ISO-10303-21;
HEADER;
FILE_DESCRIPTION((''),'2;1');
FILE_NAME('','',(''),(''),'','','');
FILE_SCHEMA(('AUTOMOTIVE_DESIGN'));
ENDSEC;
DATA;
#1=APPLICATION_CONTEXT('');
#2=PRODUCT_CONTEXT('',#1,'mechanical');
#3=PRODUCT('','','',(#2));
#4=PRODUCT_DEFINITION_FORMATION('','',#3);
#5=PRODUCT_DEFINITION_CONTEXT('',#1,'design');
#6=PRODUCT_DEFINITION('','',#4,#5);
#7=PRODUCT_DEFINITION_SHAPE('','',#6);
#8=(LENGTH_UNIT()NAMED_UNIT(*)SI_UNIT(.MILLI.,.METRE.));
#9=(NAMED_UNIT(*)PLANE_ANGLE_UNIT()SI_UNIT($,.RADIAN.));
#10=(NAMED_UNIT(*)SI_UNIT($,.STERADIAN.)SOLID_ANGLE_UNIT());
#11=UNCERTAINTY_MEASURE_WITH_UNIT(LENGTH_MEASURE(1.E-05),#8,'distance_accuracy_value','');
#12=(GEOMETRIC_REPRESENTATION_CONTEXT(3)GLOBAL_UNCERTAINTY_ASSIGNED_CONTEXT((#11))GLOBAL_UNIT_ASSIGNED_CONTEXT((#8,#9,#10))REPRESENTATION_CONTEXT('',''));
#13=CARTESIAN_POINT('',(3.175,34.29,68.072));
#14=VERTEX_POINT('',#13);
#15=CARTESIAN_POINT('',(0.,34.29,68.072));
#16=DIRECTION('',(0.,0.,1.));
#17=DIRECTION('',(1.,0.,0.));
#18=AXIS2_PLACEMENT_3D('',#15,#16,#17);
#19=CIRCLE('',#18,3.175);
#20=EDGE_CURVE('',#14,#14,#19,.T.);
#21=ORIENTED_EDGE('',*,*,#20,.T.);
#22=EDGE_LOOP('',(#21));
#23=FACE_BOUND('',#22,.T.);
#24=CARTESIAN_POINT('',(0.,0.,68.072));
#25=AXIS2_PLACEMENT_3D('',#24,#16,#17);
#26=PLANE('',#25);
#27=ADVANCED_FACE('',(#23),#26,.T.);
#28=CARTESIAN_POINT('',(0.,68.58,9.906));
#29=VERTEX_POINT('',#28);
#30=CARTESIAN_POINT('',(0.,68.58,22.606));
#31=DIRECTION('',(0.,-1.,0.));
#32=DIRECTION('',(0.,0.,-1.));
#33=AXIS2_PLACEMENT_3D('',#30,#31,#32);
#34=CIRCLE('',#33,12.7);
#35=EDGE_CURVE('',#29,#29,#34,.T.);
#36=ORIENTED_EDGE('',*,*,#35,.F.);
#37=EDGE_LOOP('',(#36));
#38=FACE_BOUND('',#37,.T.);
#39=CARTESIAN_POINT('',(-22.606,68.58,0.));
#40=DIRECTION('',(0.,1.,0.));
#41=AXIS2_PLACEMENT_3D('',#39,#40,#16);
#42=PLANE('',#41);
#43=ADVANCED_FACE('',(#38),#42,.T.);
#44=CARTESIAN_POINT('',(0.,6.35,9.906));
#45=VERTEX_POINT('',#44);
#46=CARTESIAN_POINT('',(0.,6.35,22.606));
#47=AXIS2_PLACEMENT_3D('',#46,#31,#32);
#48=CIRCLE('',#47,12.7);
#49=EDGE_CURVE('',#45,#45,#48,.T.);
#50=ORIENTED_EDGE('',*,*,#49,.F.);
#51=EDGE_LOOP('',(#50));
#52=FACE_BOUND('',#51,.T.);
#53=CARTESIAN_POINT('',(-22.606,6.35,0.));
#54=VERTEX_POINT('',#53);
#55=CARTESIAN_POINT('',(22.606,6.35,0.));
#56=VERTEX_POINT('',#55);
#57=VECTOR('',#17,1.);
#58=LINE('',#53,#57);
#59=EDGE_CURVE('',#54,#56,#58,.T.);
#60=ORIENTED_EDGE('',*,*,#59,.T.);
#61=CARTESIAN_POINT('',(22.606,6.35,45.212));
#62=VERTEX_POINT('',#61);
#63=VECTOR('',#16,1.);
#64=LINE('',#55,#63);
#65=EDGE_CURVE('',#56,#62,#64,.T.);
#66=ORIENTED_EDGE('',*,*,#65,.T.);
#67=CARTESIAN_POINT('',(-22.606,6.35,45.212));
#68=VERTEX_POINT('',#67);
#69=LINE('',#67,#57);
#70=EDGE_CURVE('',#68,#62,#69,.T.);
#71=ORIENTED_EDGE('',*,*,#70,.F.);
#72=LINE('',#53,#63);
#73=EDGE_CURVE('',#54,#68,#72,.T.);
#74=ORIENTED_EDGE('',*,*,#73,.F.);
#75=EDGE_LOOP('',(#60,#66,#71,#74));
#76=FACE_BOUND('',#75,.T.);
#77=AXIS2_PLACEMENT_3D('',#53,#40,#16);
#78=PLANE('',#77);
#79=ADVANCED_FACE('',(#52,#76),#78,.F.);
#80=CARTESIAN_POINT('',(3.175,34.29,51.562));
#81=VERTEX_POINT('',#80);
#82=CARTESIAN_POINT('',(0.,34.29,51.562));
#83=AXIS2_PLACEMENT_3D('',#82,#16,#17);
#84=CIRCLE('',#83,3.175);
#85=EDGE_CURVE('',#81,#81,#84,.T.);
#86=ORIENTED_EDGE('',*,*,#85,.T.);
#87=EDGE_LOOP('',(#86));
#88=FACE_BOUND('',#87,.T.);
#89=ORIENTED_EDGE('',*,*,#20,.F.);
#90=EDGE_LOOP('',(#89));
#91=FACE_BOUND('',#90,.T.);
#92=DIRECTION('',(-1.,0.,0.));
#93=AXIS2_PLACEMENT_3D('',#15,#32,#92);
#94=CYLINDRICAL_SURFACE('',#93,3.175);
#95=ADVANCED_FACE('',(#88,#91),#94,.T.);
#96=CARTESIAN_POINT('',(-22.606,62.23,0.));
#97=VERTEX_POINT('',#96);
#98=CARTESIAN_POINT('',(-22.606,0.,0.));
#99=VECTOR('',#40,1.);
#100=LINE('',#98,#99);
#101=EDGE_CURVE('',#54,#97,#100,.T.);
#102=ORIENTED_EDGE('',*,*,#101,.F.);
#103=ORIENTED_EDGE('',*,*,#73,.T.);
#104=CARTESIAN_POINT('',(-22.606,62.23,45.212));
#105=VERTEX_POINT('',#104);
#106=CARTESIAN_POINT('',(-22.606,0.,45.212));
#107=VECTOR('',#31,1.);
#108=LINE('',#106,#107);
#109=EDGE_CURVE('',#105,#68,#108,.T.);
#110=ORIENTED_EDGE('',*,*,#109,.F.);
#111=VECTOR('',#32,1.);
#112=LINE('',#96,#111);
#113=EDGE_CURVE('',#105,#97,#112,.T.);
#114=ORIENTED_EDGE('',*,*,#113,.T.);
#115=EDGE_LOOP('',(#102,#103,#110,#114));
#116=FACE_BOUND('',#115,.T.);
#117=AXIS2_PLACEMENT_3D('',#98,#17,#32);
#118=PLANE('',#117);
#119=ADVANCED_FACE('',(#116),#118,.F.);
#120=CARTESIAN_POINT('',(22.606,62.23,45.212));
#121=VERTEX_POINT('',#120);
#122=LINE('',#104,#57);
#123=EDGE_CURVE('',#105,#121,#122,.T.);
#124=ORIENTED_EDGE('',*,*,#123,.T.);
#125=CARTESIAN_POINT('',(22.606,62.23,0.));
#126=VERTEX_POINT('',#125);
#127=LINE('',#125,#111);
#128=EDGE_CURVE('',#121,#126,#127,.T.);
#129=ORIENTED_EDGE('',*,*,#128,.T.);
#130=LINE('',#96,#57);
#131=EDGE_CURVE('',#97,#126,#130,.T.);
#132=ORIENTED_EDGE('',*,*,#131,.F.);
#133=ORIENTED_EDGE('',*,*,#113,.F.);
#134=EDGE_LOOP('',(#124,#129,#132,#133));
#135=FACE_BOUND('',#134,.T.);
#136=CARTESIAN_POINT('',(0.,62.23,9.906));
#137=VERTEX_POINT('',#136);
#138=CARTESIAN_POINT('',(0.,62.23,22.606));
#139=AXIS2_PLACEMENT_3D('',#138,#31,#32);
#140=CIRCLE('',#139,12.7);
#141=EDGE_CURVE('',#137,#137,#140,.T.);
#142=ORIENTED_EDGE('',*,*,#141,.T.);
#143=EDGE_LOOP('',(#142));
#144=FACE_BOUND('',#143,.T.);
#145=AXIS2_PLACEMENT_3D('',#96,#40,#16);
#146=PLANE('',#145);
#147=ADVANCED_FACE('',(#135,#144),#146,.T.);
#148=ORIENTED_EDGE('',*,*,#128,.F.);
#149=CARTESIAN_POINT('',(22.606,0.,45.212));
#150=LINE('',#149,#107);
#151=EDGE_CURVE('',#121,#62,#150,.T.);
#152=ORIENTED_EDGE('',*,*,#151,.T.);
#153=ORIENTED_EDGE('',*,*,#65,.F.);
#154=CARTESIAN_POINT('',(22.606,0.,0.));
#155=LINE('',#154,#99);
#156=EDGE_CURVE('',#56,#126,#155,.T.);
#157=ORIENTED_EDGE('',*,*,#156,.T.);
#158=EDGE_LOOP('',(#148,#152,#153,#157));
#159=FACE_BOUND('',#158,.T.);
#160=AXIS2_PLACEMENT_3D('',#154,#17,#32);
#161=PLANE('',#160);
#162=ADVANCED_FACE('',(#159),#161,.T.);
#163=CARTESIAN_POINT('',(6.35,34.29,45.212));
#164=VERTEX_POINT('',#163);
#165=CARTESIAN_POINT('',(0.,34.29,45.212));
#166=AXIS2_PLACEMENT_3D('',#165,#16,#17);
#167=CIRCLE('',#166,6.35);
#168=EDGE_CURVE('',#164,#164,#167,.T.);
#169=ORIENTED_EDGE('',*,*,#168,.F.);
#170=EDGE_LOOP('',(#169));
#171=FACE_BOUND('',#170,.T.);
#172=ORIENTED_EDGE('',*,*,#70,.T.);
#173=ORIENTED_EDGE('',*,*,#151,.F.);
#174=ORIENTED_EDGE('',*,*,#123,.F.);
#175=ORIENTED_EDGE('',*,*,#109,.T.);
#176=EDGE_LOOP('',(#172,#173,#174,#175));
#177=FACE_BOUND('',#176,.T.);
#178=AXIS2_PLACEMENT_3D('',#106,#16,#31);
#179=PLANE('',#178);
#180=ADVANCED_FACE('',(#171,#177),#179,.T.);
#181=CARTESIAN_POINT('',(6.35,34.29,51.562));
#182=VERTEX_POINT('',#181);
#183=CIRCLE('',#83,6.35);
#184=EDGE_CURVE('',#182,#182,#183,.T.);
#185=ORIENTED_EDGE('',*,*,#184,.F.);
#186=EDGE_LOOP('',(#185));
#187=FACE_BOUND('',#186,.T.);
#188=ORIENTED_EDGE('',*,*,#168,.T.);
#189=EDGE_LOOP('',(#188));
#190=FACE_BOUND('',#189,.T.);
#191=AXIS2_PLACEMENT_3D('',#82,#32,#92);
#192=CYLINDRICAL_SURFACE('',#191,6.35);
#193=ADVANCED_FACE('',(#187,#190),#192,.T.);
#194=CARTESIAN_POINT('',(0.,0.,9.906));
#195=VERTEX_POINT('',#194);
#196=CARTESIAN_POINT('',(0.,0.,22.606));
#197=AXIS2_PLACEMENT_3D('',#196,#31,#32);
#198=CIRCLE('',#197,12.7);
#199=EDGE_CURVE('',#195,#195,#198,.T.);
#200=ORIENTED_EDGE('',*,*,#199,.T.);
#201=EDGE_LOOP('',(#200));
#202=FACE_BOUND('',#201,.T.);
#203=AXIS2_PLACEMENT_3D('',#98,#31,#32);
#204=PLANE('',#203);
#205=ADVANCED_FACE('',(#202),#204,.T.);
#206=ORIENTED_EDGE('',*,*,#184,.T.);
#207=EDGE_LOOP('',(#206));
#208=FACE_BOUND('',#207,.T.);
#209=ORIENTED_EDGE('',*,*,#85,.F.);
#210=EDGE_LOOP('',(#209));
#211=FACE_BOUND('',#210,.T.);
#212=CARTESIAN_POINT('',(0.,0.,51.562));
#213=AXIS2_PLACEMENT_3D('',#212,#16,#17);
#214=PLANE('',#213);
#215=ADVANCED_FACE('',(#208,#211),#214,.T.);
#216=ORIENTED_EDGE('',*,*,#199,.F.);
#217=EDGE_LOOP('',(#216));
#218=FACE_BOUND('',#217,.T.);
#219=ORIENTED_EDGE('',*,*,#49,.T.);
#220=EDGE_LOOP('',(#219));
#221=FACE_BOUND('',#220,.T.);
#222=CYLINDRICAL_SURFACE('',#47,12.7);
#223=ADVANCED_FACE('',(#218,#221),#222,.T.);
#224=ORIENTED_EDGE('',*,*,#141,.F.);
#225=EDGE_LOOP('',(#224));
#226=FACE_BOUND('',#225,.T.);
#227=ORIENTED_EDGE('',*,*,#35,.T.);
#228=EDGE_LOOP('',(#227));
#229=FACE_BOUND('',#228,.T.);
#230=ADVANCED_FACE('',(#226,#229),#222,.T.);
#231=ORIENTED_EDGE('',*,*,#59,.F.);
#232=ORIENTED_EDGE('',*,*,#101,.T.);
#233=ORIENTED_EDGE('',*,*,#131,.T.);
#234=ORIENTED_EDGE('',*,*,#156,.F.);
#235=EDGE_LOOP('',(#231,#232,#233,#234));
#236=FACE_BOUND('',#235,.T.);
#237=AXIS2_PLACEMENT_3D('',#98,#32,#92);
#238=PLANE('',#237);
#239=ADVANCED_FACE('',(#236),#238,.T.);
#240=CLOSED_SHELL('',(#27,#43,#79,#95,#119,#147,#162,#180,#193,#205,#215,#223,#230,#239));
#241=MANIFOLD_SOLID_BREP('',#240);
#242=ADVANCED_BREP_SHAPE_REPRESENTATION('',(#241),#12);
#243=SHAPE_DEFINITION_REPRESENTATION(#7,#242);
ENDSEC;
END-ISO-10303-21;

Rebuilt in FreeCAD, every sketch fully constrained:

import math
import FreeCAD as App
import Part
import Sketcher

V = App.Vector
Q = App.Units.Quantity


def add_polygon(sketch, points):
    """Adds a closed chain of lines whose ends are joined by coincident constraints."""
    first, n = sketch.GeometryCount, len(points)
    for a, b in zip(points, points[1:] + points[:1]):
        sketch.addGeometry(Part.LineSegment(App.Vector(*a, 0), App.Vector(*b, 0)), False)
    for i in range(n):
        sketch.addConstraint(Sketcher.Constraint("Coincident", first + i, 2, first + (i + 1) % n, 1))

doc = App.newDocument("Part")
body = doc.addObject("PartDesign::Body", "Body")

sketch1 = body.newObject("Sketcher::SketchObject", "Sketch")
sketch1.AttachmentSupport = (doc.getObject("YZ_Plane"), [""])
sketch1.MapMode = "FlatFace"
add_polygon(sketch1, [(62, 45), (6, 45), (6, 35), (0, 35), (0, 10), (6, 10), (6, 0), (62, 0), (62, 10), (69, 10), (69, 35), (62, 35)])
sketch1.addConstraint(Sketcher.Constraint("Horizontal", 0))
sketch1.addConstraint(Sketcher.Constraint("Vertical", 1))
sketch1.addConstraint(Sketcher.Constraint("Horizontal", 2))
sketch1.addConstraint(Sketcher.Constraint("Vertical", 3))
sketch1.addConstraint(Sketcher.Constraint("Horizontal", 4))
sketch1.addConstraint(Sketcher.Constraint("Vertical", 5))
sketch1.addConstraint(Sketcher.Constraint("Horizontal", 6))
sketch1.addConstraint(Sketcher.Constraint("Vertical", 7))
sketch1.addConstraint(Sketcher.Constraint("Horizontal", 8))
sketch1.addConstraint(Sketcher.Constraint("Vertical", 9))
sketch1.addConstraint(Sketcher.Constraint("Horizontal", 10))
sketch1.addConstraint(Sketcher.Constraint("Vertical", 11))
sketch1.addConstraint(Sketcher.Constraint("PointOnObject", 2, 2, -2))
sketch1.addConstraint(Sketcher.Constraint("PointOnObject", 5, 2, -1))
sketch1.addConstraint(Sketcher.Constraint("Horizontal", 4, 2, 7, 2))
sketch1.addConstraint(Sketcher.Constraint("Horizontal", 2, 2, 9, 2))
sketch1.addConstraint(Sketcher.Constraint("Vertical", 1, 2, 4, 2))
sketch1.addConstraint(Sketcher.Constraint("Vertical", 7, 2, 10, 2))
sketch1.addConstraint(Sketcher.Constraint("Equal", 4, 8))
sketch1.addConstraint(Sketcher.Constraint("Equal", 1, 5))
sketch1.addConstraint(Sketcher.Constraint("DistanceY", 3, 2, 3, 1, Q("1 in")))
sketch1.addConstraint(Sketcher.Constraint("DistanceX", 0, 2, 0, 1, Q("2.2 in")))
sketch1.addConstraint(Sketcher.Constraint("DistanceX", 2, 2, 2, 1, Q("0.25 in")))
sketch1.addConstraint(Sketcher.Constraint("DistanceY", 1, 2, 1, 1, Q("0.39 in")))
pad1 = body.newObject("PartDesign::Pad", "Pad")
pad1.Profile = sketch1
pad1.Type = "TwoLengths"
pad1.Length = Q("0.89 in")
pad1.Length2 = Q("0.89 in")

sketch2 = body.newObject("Sketcher::SketchObject", "Sketch001")
sketch2.AttachmentSupport = (doc.getObject("YZ_Plane"), [""])
sketch2.MapMode = "FlatFace"
add_polygon(sketch2, [(62, 71), (62, 35), (69, 35), (69, 71)])
add_polygon(sketch2, [(0, 71), (0, 35), (6, 35), (6, 71)])
sketch2.addGeometry(Part.LineSegment(V(0, 23, 0), V(69, 23, 0)), True)
sketch2.addConstraint(Sketcher.Constraint("Vertical", 0))
sketch2.addConstraint(Sketcher.Constraint("Horizontal", 1))
sketch2.addConstraint(Sketcher.Constraint("Vertical", 2))
sketch2.addConstraint(Sketcher.Constraint("Horizontal", 3))
sketch2.addConstraint(Sketcher.Constraint("Vertical", 4))
sketch2.addConstraint(Sketcher.Constraint("Horizontal", 5))
sketch2.addConstraint(Sketcher.Constraint("Vertical", 6))
sketch2.addConstraint(Sketcher.Constraint("Horizontal", 7))
sketch2.addConstraint(Sketcher.Constraint("Horizontal", 8))
sketch2.addConstraint(Sketcher.Constraint("PointOnObject", 4, 2, -2))
sketch2.addConstraint(Sketcher.Constraint("PointOnObject", 8, 1, -2))
sketch2.addConstraint(Sketcher.Constraint("Horizontal", 1, 2, 4, 2))
sketch2.addConstraint(Sketcher.Constraint("Horizontal", 3, 2, 6, 2))
sketch2.addConstraint(Sketcher.Constraint("Vertical", 2, 2, 8, 2))
sketch2.addConstraint(Sketcher.Constraint("Equal", 3, 5))
sketch2.addConstraint(Sketcher.Constraint("DistanceX", 8, 1, 8, 2, Q("2.7 in")))
sketch2.addConstraint(Sketcher.Constraint("DistanceX", 1, 1, 1, 2, Q("0.25 in")))
sketch2.addConstraint(Sketcher.Constraint("DistanceY", 0, 2, 0, 1, Q("1.39 in")))
sketch2.addConstraint(Sketcher.Constraint("DistanceY", 8, 1, 4, 2, Q("0.5 in")))
sketch2.addConstraint(Sketcher.Constraint("DistanceY", -1, 1, 0, 2, Q("1.39 in")))
groove = body.newObject("PartDesign::Groove", "Groove")
groove.Profile = sketch2
groove.ReferenceAxis = (sketch2, ["Axis0"])
groove.Angle = 360

sketch3 = body.newObject("Sketcher::SketchObject", "Sketch002")
sketch3.AttachmentSupport = (doc.getObject("XY_Plane"), [""])
sketch3.MapMode = "FlatFace"
sketch3.AttachmentOffset = App.Placement(V(0, 0, 1.78 * 25.4), App.Rotation())
sketch3.addGeometry(Part.ArcOfCircle(Part.Circle(V(0, 34.3, 0), V(0, 0, 1), 3.2), math.radians(0), math.radians(270)), False)
sketch3.addGeometry(Part.ArcOfCircle(Part.Circle(V(0, 34.3, 0), V(0, 0, 1), 3.2), math.radians(-90), math.radians(0)), False)
sketch3.addConstraint(Sketcher.Constraint("Tangent", 0, 1, 1, 2))
sketch3.addConstraint(Sketcher.Constraint("Coincident", 1, 1, 0, 2))
sketch3.addConstraint(Sketcher.Constraint("PointOnObject", 0, 3, -2))
sketch3.addConstraint(Sketcher.Constraint("PointOnObject", 1, 1, -2))
sketch3.addConstraint(Sketcher.Constraint("Horizontal", 1, 3, 0, 1))
sketch3.addConstraint(Sketcher.Constraint("Radius", 0, Q("0.125 in")))
sketch3.addConstraint(Sketcher.Constraint("DistanceY", -1, 1, 0, 3, Q("1.35 in")))
pad2 = body.newObject("PartDesign::Pad", "Pad001")
pad2.Profile = sketch3
pad2.Length = Q("0.9 in")

sketch4 = body.newObject("Sketcher::SketchObject", "Sketch003")
sketch4.AttachmentSupport = (doc.getObject("XY_Plane"), [""])
sketch4.MapMode = "FlatFace"
sketch4.AttachmentOffset = App.Placement(V(0, 0, 1.78 * 25.4), App.Rotation())
sketch4.addGeometry(Part.ArcOfCircle(Part.Circle(V(0, 34.3, 0), V(0, 0, 1), 6.3), math.radians(0), math.radians(270)), False)
sketch4.addGeometry(Part.ArcOfCircle(Part.Circle(V(0, 34.3, 0), V(0, 0, 1), 6.3), math.radians(-90), math.radians(0)), False)
sketch4.addGeometry(Part.ArcOfCircle(Part.Circle(V(0, 34.3, 0), V(0, 0, 1), 3.2), math.radians(0), math.radians(270)), False)
sketch4.addGeometry(Part.ArcOfCircle(Part.Circle(V(0, 34.3, 0), V(0, 0, 1), 3.2), math.radians(-90), math.radians(0)), False)
sketch4.addConstraint(Sketcher.Constraint("Tangent", 0, 1, 1, 2))
sketch4.addConstraint(Sketcher.Constraint("Coincident", 1, 1, 0, 2))
sketch4.addConstraint(Sketcher.Constraint("Tangent", 2, 1, 3, 2))
sketch4.addConstraint(Sketcher.Constraint("Coincident", 3, 1, 2, 2))
sketch4.addConstraint(Sketcher.Constraint("Coincident", 2, 3, 0, 3))
sketch4.addConstraint(Sketcher.Constraint("PointOnObject", 0, 3, -2))
sketch4.addConstraint(Sketcher.Constraint("PointOnObject", 1, 1, -2))
sketch4.addConstraint(Sketcher.Constraint("PointOnObject", 3, 1, -2))
sketch4.addConstraint(Sketcher.Constraint("Horizontal", 3, 3, 0, 1))
sketch4.addConstraint(Sketcher.Constraint("Horizontal", 0, 1, 2, 1))
sketch4.addConstraint(Sketcher.Constraint("Radius", 0, Q("0.25 in")))
sketch4.addConstraint(Sketcher.Constraint("Radius", 2, Q("0.125 in")))
sketch4.addConstraint(Sketcher.Constraint("DistanceY", -1, 1, 1, 1, Q("1.1 in")))
pad3 = body.newObject("PartDesign::Pad", "Pad002")
pad3.Profile = sketch4
pad3.Length = Q("0.25 in")

doc.recompute()
